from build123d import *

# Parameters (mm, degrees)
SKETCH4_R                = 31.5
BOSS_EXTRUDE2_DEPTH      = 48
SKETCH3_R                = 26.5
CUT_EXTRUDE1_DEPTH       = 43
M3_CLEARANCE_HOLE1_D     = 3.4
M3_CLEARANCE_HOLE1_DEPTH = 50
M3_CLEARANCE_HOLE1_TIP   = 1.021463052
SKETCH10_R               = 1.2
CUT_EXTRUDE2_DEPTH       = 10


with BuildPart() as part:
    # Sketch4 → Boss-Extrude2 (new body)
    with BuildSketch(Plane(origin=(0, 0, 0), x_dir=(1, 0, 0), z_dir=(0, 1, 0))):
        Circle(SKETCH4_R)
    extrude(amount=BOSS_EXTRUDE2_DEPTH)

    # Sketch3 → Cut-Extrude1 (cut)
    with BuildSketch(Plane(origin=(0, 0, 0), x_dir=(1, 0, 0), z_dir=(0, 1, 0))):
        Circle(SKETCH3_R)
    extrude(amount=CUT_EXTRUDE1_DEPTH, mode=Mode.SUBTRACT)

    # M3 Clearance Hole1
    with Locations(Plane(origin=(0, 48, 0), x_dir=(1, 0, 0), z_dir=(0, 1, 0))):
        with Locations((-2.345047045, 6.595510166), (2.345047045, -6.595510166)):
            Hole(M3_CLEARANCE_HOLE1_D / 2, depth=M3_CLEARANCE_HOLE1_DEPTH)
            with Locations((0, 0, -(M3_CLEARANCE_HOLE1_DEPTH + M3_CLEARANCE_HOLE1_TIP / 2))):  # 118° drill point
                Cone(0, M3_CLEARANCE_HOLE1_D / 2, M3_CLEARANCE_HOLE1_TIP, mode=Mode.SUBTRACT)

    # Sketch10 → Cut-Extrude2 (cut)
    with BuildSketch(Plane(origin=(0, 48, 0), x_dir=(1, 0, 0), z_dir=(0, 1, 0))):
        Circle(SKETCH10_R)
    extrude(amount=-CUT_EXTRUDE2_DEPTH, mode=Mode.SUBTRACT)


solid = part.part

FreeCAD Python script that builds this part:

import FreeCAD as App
import Part
import Sketcher
from FreeCAD import Vector
Q = App.Units.Quantity

doc = App.newDocument("Part")
body = doc.addObject("PartDesign::Body", "Body")

sketch1 = body.newObject("Sketcher::SketchObject", "Sketch")
sketch1.AttachmentSupport = (doc.getObject("XZ_Plane"), [""])
sketch1.MapMode = "FlatFace"
sketch1.addGeometry(Part.Circle(Vector(0, 0, 0), Vector(0, 0, 1), 32), False)
sketch1.addConstraint([
    Sketcher.Constraint("Coincident", 0, 3, -1, 1),
    Sketcher.Constraint("Diameter", 0, Q("63 mm")),
])
pad1 = body.newObject("PartDesign::Pad", "Pad")
pad1.Profile = sketch1
pad1.Length = 48
pad1.Reversed = True

sketch2 = body.newObject("Sketcher::SketchObject", "Sketch001")
sketch2.AttachmentSupport = (doc.getObject("XZ_Plane"), [""])
sketch2.MapMode = "FlatFace"
sketch2.addGeometry(Part.Circle(Vector(0, 0, 0), Vector(0, 0, 1), 26), False)
sketch2.addConstraint([
    Sketcher.Constraint("Coincident", 0, 3, -1, 1),
    Sketcher.Constraint("Diameter", 0, Q("53 mm")),
])
pocket1 = body.newObject("PartDesign::Pocket", "Pocket")
pocket1.Profile = sketch2
pocket1.Length = 43

sketch3 = body.newObject("Sketcher::SketchObject", "Sketch002")
sketch3.AttachmentSupport = (doc.getObject("XZ_Plane"), [""])
sketch3.MapMode = "FlatFace"
sketch3.AttachmentOffset = App.Placement(Vector(0, 0, -48), App.Rotation())
sketch3.addGeometry([
    Part.Circle(Vector(-2.3, -6.6, 0), Vector(0, 0, 1), 1.7),
    Part.Circle(Vector(2.3, 6.6, 0), Vector(0, 0, 1), 1.7),
], False)
sketch3.addConstraint([
    Sketcher.Constraint("Equal", 0, 1),
    Sketcher.Constraint("Symmetric", 0, 3, 1, 3, -1, 1),
    Sketcher.Constraint("Diameter", 0, Q("3.4 mm")),
    Sketcher.Constraint("DistanceY", 0, 3, -1, 1, Q("6.59551 mm")),
    Sketcher.Constraint("DistanceX", 0, 3, -1, 1, Q("2.345047 mm")),
])
doc.recompute()
hole = body.newObject("PartDesign::Hole", "Hole")
hole.Profile = sketch3
hole.ThreadType = "None"
hole.Diameter = 3.4
hole.DepthType = "Dimension"
hole.Depth = 50
hole.DrillPoint = "Angled"
hole.DrillPointAngle = 118
hole.Reversed = True

sketch4 = body.newObject("Sketcher::SketchObject", "Sketch003")
sketch4.AttachmentSupport = (doc.getObject("XZ_Plane"), [""])
sketch4.MapMode = "FlatFace"
sketch4.AttachmentOffset = App.Placement(Vector(0, 0, -48), App.Rotation())
sketch4.addGeometry(Part.Circle(Vector(0, 0, 0), Vector(0, 0, 1), 1.2), False)
sketch4.addConstraint([
    Sketcher.Constraint("Coincident", 0, 3, -1, 1),
    Sketcher.Constraint("Diameter", 0, Q("2.4 mm")),
])
pocket2 = body.newObject("PartDesign::Pocket", "Pocket001")
pocket2.Profile = sketch4
pocket2.Length = 10
pocket2.Reversed = True

doc.recompute()
